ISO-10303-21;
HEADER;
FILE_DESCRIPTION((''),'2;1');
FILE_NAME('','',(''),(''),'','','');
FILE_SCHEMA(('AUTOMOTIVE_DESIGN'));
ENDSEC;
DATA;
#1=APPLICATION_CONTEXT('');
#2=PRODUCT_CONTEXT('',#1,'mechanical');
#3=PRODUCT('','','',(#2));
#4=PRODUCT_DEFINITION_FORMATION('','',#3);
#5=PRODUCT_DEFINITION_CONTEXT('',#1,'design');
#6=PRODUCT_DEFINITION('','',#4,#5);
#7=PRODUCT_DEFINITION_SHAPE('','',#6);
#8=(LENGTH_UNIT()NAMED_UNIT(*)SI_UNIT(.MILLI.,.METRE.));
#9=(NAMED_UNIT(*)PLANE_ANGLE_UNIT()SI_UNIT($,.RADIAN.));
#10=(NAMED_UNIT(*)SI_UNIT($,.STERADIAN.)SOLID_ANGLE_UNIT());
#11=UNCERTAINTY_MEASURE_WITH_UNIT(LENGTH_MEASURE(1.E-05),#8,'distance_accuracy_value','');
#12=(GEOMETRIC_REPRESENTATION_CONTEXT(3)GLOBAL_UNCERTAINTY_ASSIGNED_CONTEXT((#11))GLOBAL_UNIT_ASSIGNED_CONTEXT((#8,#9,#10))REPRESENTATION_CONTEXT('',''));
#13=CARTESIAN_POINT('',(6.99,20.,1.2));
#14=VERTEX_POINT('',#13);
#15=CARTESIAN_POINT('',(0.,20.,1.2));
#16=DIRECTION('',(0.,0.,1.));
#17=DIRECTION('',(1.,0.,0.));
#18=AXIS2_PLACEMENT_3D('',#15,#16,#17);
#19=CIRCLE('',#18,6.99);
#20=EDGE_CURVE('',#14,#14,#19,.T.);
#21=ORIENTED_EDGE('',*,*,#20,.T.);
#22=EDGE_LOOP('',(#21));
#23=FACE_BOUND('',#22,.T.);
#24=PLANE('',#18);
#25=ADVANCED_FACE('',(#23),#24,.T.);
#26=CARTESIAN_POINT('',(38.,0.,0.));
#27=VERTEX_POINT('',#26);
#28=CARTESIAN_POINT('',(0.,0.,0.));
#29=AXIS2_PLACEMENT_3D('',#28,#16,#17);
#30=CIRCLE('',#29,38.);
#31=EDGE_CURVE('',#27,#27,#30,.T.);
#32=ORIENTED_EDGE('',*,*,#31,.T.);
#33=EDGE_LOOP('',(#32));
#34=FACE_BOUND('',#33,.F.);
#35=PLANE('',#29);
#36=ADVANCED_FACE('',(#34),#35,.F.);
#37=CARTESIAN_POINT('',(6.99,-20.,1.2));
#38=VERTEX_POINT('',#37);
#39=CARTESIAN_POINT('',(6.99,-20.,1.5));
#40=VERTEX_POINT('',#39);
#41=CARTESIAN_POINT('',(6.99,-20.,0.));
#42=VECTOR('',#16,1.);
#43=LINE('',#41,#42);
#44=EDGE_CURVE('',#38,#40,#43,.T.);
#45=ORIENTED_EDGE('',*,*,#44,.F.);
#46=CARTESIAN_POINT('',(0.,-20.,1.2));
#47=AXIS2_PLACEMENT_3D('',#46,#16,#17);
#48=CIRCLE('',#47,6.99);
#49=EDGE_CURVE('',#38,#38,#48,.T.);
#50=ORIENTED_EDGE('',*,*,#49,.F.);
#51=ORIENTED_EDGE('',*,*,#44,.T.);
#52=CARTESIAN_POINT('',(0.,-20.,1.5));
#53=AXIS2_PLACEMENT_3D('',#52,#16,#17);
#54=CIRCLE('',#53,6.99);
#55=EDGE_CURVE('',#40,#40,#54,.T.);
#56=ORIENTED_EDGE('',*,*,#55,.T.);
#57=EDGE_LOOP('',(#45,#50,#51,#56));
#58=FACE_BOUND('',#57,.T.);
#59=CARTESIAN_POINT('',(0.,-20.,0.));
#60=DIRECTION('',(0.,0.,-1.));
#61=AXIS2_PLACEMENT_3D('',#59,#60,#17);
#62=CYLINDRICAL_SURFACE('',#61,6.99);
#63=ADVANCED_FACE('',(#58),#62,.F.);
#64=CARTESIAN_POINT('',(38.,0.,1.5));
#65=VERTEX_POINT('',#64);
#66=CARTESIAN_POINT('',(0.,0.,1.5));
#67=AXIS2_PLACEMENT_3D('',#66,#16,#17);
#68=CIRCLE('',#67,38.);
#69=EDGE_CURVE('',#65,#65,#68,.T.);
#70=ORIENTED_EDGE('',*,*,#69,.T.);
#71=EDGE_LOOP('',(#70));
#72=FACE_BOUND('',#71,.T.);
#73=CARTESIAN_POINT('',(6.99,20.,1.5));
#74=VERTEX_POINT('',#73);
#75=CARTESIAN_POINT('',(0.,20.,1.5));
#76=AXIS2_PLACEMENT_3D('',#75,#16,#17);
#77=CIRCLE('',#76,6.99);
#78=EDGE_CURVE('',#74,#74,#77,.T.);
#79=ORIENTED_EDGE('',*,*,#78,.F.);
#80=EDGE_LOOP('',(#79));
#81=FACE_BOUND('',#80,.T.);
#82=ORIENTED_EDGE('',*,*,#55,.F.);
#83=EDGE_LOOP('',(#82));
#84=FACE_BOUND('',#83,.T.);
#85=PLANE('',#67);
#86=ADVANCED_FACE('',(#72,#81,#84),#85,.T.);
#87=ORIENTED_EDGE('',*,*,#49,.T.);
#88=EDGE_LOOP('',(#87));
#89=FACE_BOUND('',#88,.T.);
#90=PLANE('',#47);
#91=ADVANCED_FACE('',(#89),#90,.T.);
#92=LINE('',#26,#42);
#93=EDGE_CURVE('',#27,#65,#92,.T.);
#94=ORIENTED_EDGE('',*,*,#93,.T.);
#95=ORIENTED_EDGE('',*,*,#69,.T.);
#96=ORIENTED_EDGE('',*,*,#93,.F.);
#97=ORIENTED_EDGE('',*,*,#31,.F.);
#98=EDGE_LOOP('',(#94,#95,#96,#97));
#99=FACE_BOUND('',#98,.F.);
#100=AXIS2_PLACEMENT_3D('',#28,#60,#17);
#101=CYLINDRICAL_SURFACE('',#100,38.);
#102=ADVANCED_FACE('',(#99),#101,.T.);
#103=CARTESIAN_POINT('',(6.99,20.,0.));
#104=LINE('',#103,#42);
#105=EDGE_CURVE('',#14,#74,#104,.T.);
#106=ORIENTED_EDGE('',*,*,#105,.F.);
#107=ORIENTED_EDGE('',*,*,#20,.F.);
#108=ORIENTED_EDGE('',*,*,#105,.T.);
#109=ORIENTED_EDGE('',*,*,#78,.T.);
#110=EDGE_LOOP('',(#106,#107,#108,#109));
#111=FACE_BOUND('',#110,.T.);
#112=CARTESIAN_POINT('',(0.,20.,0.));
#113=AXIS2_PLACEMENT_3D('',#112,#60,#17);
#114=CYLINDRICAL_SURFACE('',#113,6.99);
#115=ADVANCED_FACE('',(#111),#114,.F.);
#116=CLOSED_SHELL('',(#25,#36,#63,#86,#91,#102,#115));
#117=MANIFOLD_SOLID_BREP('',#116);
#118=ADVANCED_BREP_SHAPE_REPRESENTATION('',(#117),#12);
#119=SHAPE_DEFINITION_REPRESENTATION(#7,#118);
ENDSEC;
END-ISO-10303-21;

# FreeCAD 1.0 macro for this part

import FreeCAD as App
import Part
import Sketcher

doc = App.newDocument("Part")
body = doc.addObject("PartDesign::Body", "Body")
body.AllowCompound = True

sketch1 = body.newObject("Sketcher::SketchObject", "Sketch")
sketch1.AttachmentSupport = (doc.getObject("XY_Plane"), [""])
sketch1.MapMode = "FlatFace"
sketch1.addGeometry(Part.Circle(App.Vector(0, 20, 0), App.Vector(0, 0, 1), 7), False)
sketch1.addGeometry(Part.Circle(App.Vector(0, -20, 0), App.Vector(0, 0, 1), 7), False)
sketch1.addConstraint(Sketcher.Constraint("Equal", 0, 1))
sketch1.addConstraint(Sketcher.Constraint("Symmetric", 0, 3, 1, 3, -1, 1))
sketch1.addConstraint(Sketcher.Constraint("PointOnObject", 0, 3, -2))
sketch1.addConstraint(Sketcher.Constraint("Diameter", 0, 13.98))
sketch1.addConstraint(Sketcher.Constraint("DistanceY", -1, 1, 0, 3, 20.0))
pad1 = body.newObject("PartDesign::Pad", "Pad")
pad1.Profile = sketch1
pad1.Length = 1.2

sketch2 = body.newObject("Sketcher::SketchObject", "Sketch001")
sketch2.AttachmentSupport = (doc.getObject("XY_Plane"), [""])
sketch2.MapMode = "FlatFace"
sketch2.addGeometry(Part.Circle(App.Vector(0, 0, 0), App.Vector(0, 0, 1), 38), False)
sketch2.addGeometry(Part.Circle(App.Vector(0, -20, 0), App.Vector(0, 0, 1), 7), False)
sketch2.addGeometry(Part.Circle(App.Vector(0, 20, 0), App.Vector(0, 0, 1), 7), False)
sketch2.addConstraint(Sketcher.Constraint("Coincident", 0, 3, -1, 1))
sketch2.addConstraint(Sketcher.Constraint("Equal", 1, 2))
sketch2.addConstraint(Sketcher.Constraint("Symmetric", 1, 3, 2, 3, -1, 1))
sketch2.addConstraint(Sketcher.Constraint("PointOnObject", 1, 3, -2))
sketch2.addConstraint(Sketcher.Constraint("Diameter", 0, 76.0))
sketch2.addConstraint(Sketcher.Constraint("Diameter", 1, 13.98))
sketch2.addConstraint(Sketcher.Constraint("DistanceY", 1, 3, -1, 1, 20.0))
pad2 = body.newObject("PartDesign::Pad", "Pad001")
pad2.Profile = sketch2
pad2.Length = 1.5

doc.recompute()
